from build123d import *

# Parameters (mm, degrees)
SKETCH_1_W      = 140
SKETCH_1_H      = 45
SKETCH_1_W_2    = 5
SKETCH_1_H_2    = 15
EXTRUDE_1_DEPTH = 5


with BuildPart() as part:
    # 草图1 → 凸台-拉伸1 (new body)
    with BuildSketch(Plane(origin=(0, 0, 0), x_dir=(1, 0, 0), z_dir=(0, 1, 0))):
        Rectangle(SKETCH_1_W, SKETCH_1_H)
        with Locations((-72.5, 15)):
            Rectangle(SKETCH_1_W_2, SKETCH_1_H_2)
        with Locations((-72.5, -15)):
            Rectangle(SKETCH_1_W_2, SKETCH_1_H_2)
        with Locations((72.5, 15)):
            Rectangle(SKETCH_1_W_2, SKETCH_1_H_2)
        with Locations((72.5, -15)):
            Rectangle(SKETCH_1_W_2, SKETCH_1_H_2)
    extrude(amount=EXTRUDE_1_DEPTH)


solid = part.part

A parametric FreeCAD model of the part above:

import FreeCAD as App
import Part
import Sketcher


def add_polygon(sketch, points):
    """Adds a closed chain of lines whose ends are joined by coincident constraints."""
    first, n = sketch.GeometryCount, len(points)
    for a, b in zip(points, points[1:] + points[:1]):
        sketch.addGeometry(Part.LineSegment(App.Vector(*a, 0), App.Vector(*b, 0)), False)
    for i in range(n):
        sketch.addConstraint(Sketcher.Constraint("Coincident", first + i, 2, first + (i + 1) % n, 1))

doc = App.newDocument("Part")
body = doc.addObject("PartDesign::Body", "Body")

sketch1 = doc.addObject("Sketcher::SketchObject", "Sketch")
body.addObject(sketch1)
sketch1.AttachmentSupport = (doc.XZ_Plane, [""])
sketch1.MapMode = "FlatFace"
add_polygon(sketch1, [(-70, -8), (-70, 8), (-75, 8), (-75, 22), (75, 22), (75, 8), (70, 8), (70, -8), (75, -8), (75, -22), (-75, -22), (-75, -8)])
sketch1.addConstraint(Sketcher.Constraint("Vertical", 0))
sketch1.addConstraint(Sketcher.Constraint("Horizontal", 1))
sketch1.addConstraint(Sketcher.Constraint("Vertical", 2))
sketch1.addConstraint(Sketcher.Constraint("Horizontal", 3))
sketch1.addConstraint(Sketcher.Constraint("Vertical", 4))
sketch1.addConstraint(Sketcher.Constraint("Horizontal", 5))
sketch1.addConstraint(Sketcher.Constraint("Vertical", 6))
sketch1.addConstraint(Sketcher.Constraint("Horizontal", 7))
sketch1.addConstraint(Sketcher.Constraint("Vertical", 8))
sketch1.addConstraint(Sketcher.Constraint("Horizontal", 9))
sketch1.addConstraint(Sketcher.Constraint("Vertical", 10))
sketch1.addConstraint(Sketcher.Constraint("Horizontal", 11))
sketch1.addConstraint(Sketcher.Constraint("Symmetric", 0, 2, 6, 2, -1, 1))
sketch1.addConstraint(Sketcher.Constraint("Symmetric", 2, 2, 8, 2, -1, 1))
sketch1.addConstraint(Sketcher.Constraint("Symmetric", 4, 2, 10, 2, -1, 1))
sketch1.addConstraint(Sketcher.Constraint("Symmetric", 1, 2, 4, 2, -2))
sketch1.addConstraint(Sketcher.Constraint("Equal", 0, 2))
sketch1.addConstraint(Sketcher.Constraint("DistanceX", 1, 2, 1, 1, 5.0))
sketch1.addConstraint(Sketcher.Constraint("DistanceX", 3, 1, 3, 2, 150.0))
sketch1.addConstraint(Sketcher.Constraint("DistanceY", 0, 1, 0, 2, 15.0))
pad1 = doc.addObject("PartDesign::Pad", "Pad")
body.addObject(pad1)
pad1.Profile = sketch1
pad1.Length = 5
pad1.Reversed = True

doc.recompute()
